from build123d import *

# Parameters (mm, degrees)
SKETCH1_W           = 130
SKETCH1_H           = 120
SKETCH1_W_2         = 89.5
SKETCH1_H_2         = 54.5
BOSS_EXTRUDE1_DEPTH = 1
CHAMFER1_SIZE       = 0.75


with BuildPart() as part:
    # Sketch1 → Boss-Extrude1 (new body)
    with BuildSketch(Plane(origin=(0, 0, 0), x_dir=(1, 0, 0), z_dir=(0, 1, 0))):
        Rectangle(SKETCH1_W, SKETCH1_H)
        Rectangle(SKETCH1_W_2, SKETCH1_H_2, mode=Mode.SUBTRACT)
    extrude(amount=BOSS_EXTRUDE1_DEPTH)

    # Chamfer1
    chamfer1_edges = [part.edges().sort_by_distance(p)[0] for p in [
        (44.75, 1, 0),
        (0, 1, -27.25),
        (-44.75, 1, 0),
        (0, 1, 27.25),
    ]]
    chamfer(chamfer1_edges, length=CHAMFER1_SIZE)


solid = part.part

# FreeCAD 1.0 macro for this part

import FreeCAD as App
import Part
import Sketcher


def edges_at(feature, points):
    """Names of the edges that pass closest to the given points."""
    edges = feature.Shape.Edges
    near = lambda p: min(range(len(edges)), key=lambda i: edges[i].distToShape(Part.Vertex(*p))[0])
    return sorted({f"Edge{near(p) + 1}" for p in points})


def add_polygon(sketch, points):
    """Adds a closed chain of lines whose ends are joined by coincident constraints."""
    first, n = sketch.GeometryCount, len(points)
    for a, b in zip(points, points[1:] + points[:1]):
        sketch.addGeometry(Part.LineSegment(App.Vector(*a, 0), App.Vector(*b, 0)), False)
    for i in range(n):
        sketch.addConstraint(Sketcher.Constraint("Coincident", first + i, 2, first + (i + 1) % n, 1))

doc = App.newDocument("Part")
params = doc.addObject("Spreadsheet::Sheet", "Params")
for row, (alias, value) in enumerate([
    ("sketch1_width", "130 mm"),
    ("sketch1_height", "120 mm"),
    ("sketch1_width2", "89.5 mm"),
    ("sketch1_height2", "54.5 mm"),
    ("pad1_length", "1 mm"),
    ("chamfer_size", "0.75 mm"),
], start=1):
    params.set(f"A{row}", alias)
    params.set(f"B{row}", "=" + value)
    params.setAlias(f"B{row}", alias)

body = doc.addObject("PartDesign::Body", "Body")

sketch1 = body.newObject("Sketcher::SketchObject", "Sketch")
sketch1.AttachmentSupport = (doc.getObject("XZ_Plane"), [""])
sketch1.MapMode = "FlatFace"
add_polygon(sketch1, [(-65, -60), (-65, 60), (65, 60), (65, -60)])
add_polygon(sketch1, [(45, 27), (-45, 27), (-45, -27), (45, -27)])
sketch1.addConstraint(Sketcher.Constraint("Vertical", 0))
sketch1.addConstraint(Sketcher.Constraint("Horizontal", 1))
sketch1.addConstraint(Sketcher.Constraint("Vertical", 2))
sketch1.addConstraint(Sketcher.Constraint("Horizontal", 3))
sketch1.addConstraint(Sketcher.Constraint("Horizontal", 4))
sketch1.addConstraint(Sketcher.Constraint("Vertical", 5))
sketch1.addConstraint(Sketcher.Constraint("Horizontal", 6))
sketch1.addConstraint(Sketcher.Constraint("Vertical", 7))
sketch1.addConstraint(Sketcher.Constraint("Symmetric", 0, 2, 2, 2, -1, 1))
sketch1.addConstraint(Sketcher.Constraint("Symmetric", 4, 2, 6, 2, -1, 1))
sketch1.addConstraint(Sketcher.Constraint("DistanceX", 1, 1, 1, 2, 130.0))
sketch1.addConstraint(Sketcher.Constraint("DistanceY", 0, 1, 0, 2, 120.0))
sketch1.addConstraint(Sketcher.Constraint("DistanceX", 4, 2, 4, 1, 89.5))
sketch1.addConstraint(Sketcher.Constraint("DistanceY", 5, 2, 5, 1, 54.5))
sketch1.setExpression("Constraints[18]", "Params.sketch1_width")
sketch1.setExpression("Constraints[19]", "Params.sketch1_height")
sketch1.setExpression("Constraints[20]", "Params.sketch1_width2")
sketch1.setExpression("Constraints[21]", "Params.sketch1_height2")
pad1 = body.newObject("PartDesign::Pad", "Pad")
pad1.Profile = sketch1
pad1.setExpression("Length", "Params.pad1_length")
pad1.Reversed = True
doc.recompute()

chamfer = body.newObject("PartDesign::Chamfer", "Chamfer")
chamfer.Base = (pad1, edges_at(pad1, [
    (44.75, 1, 0),
    (0, 1, -27.25),
    (-44.75, 1, 0),
    (0, 1, 27.25),
]))
chamfer.setExpression("Size", "Params.chamfer_size")

doc.recompute()
